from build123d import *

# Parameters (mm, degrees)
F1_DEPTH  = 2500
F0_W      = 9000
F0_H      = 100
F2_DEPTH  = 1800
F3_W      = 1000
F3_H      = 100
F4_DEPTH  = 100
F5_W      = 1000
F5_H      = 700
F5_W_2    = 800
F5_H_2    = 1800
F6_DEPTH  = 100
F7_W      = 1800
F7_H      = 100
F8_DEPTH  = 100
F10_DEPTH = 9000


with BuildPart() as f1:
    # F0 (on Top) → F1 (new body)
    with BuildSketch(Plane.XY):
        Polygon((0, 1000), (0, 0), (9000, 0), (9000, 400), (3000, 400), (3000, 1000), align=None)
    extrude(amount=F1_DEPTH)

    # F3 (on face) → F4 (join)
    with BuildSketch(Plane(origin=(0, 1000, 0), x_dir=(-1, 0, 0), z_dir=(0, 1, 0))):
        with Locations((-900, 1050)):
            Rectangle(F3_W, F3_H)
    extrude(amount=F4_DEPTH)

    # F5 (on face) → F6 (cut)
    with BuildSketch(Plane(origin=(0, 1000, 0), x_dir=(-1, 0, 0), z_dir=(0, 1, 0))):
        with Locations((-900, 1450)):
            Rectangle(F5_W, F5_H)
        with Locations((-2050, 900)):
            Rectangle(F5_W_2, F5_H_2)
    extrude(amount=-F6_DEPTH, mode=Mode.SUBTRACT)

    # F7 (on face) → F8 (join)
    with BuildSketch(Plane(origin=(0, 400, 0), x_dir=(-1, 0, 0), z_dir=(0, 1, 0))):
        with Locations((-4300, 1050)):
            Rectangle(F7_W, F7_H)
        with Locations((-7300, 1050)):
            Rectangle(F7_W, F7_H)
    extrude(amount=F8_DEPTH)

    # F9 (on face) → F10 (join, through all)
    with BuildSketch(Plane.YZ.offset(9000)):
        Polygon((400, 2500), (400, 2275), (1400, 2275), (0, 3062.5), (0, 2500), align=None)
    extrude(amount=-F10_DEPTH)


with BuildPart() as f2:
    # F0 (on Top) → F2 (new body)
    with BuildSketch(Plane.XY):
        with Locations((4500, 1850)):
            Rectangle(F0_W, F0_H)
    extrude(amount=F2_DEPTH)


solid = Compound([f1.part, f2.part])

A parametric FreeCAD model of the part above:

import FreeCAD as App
import Part
import Sketcher
Q = App.Units.Quantity

doc = App.newDocument("Part")
body = doc.addObject("PartDesign::Body", "Body")

sketch1 = doc.addObject("Sketcher::SketchObject", "Sketch")
body.addObject(sketch1)
sketch1.AttachmentSupport = (doc.XY_Plane, [""])
sketch1.MapMode = "FlatFace"
sketch1.addGeometry(Part.LineSegment(App.Vector(0, 1000, 0), App.Vector(0, 0, 0)), False)
sketch1.addGeometry(Part.LineSegment(App.Vector(0, 0, 0), App.Vector(9000, 0, 0)), False)
sketch1.addGeometry(Part.LineSegment(App.Vector(9000, 0, 0), App.Vector(9000, 400, 0)), False)
sketch1.addGeometry(Part.LineSegment(App.Vector(9000, 400, 0), App.Vector(3000, 400, 0)), False)
sketch1.addGeometry(Part.LineSegment(App.Vector(3000, 400, 0), App.Vector(3000, 1000, 0)), False)
sketch1.addGeometry(Part.LineSegment(App.Vector(3000, 1000, 0), App.Vector(0, 1000, 0)), False)
sketch1.addConstraint(Sketcher.Constraint("Coincident", 0, 2, 1, 1))
sketch1.addConstraint(Sketcher.Constraint("Coincident", 1, 2, 2, 1))
sketch1.addConstraint(Sketcher.Constraint("Coincident", 2, 2, 3, 1))
sketch1.addConstraint(Sketcher.Constraint("Coincident", 3, 2, 4, 1))
sketch1.addConstraint(Sketcher.Constraint("Coincident", 4, 2, 5, 1))
sketch1.addConstraint(Sketcher.Constraint("Coincident", 5, 2, 0, 1))
sketch1.addConstraint(Sketcher.Constraint("Vertical", 0))
sketch1.addConstraint(Sketcher.Constraint("Horizontal", 1))
sketch1.addConstraint(Sketcher.Constraint("Vertical", 2))
sketch1.addConstraint(Sketcher.Constraint("Horizontal", 3))
sketch1.addConstraint(Sketcher.Constraint("Vertical", 4))
sketch1.addConstraint(Sketcher.Constraint("Horizontal", 5))
sketch1.addConstraint(Sketcher.Constraint("Coincident", 0, 2, -1, 1))
sketch1.addConstraint(Sketcher.Constraint("DistanceX", 1, 1, 1, 2, Q("9000 mm")))
sketch1.addConstraint(Sketcher.Constraint("DistanceX", 3, 2, 3, 1, Q("6000 mm")))
sketch1.addConstraint(Sketcher.Constraint("DistanceY", 0, 2, 0, 1, Q("1000 mm")))
sketch1.addConstraint(Sketcher.Constraint("DistanceY", 2, 1, 2, 2, Q("400 mm")))
pad1 = doc.addObject("PartDesign::Pad", "Pad")
body.addObject(pad1)
pad1.Profile = sketch1
pad1.Length = 2500

sketch2 = doc.addObject("Sketcher::SketchObject", "Sketch001")
body.addObject(sketch2)
sketch2.AttachmentSupport = (doc.XZ_Plane, [""])
sketch2.MapMode = "FlatFace"
sketch2.AttachmentOffset = App.Placement(App.Vector(0, 0, -1000), App.Rotation())
sketch2.addGeometry(Part.LineSegment(App.Vector(1400, 1100, 0), App.Vector(1400, 1000, 0)), False)
sketch2.addGeometry(Part.LineSegment(App.Vector(1400, 1000, 0), App.Vector(400, 1000, 0)), False)
sketch2.addGeometry(Part.LineSegment(App.Vector(400, 1000, 0), App.Vector(400, 1100, 0)), False)
sketch2.addGeometry(Part.LineSegment(App.Vector(400, 1100, 0), App.Vector(1400, 1100, 0)), False)
sketch2.addConstraint(Sketcher.Constraint("Coincident", 0, 2, 1, 1))
sketch2.addConstraint(Sketcher.Constraint("Coincident", 1, 2, 2, 1))
sketch2.addConstraint(Sketcher.Constraint("Coincident", 2, 2, 3, 1))
sketch2.addConstraint(Sketcher.Constraint("Coincident", 3, 2, 0, 1))
sketch2.addConstraint(Sketcher.Constraint("Vertical", 0))
sketch2.addConstraint(Sketcher.Constraint("Horizontal", 1))
sketch2.addConstraint(Sketcher.Constraint("Vertical", 2))
sketch2.addConstraint(Sketcher.Constraint("Horizontal", 3))
sketch2.addConstraint(Sketcher.Constraint("DistanceX", 1, 2, 1, 1, Q("1000 mm")))
sketch2.addConstraint(Sketcher.Constraint("DistanceY", 0, 2, 0, 1, Q("100 mm")))
sketch2.addConstraint(Sketcher.Constraint("DistanceX", -1, 1, 0, 2, Q("1400 mm")))
sketch2.addConstraint(Sketcher.Constraint("DistanceY", -1, 1, 0, 2, Q("1000 mm")))
pad2 = doc.addObject("PartDesign::Pad", "Pad001")
body.addObject(pad2)
pad2.Profile = sketch2
pad2.Length = 100
pad2.Reversed = True

sketch3 = doc.addObject("Sketcher::SketchObject", "Sketch002")
body.addObject(sketch3)
sketch3.AttachmentSupport = (doc.XZ_Plane, [""])
sketch3.MapMode = "FlatFace"
sketch3.AttachmentOffset = App.Placement(App.Vector(0, 0, -1000), App.Rotation())
sketch3.addGeometry(Part.LineSegment(App.Vector(1400, 1800, 0), App.Vector(1400, 1100, 0)), False)
sketch3.addGeometry(Part.LineSegment(App.Vector(1400, 1100, 0), App.Vector(400, 1100, 0)), False)
sketch3.addGeometry(Part.LineSegment(App.Vector(400, 1100, 0), App.Vector(400, 1800, 0)), False)
sketch3.addGeometry(Part.LineSegment(App.Vector(400, 1800, 0), App.Vector(1400, 1800, 0)), False)
sketch3.addGeometry(Part.LineSegment(App.Vector(2450, 1800, 0), App.Vector(2450, 0, 0)), False)
sketch3.addGeometry(Part.LineSegment(App.Vector(2450, 0, 0), App.Vector(1650, 0, 0)), False)
sketch3.addGeometry(Part.LineSegment(App.Vector(1650, 0, 0), App.Vector(1650, 1800, 0)), False)
sketch3.addGeometry(Part.LineSegment(App.Vector(1650, 1800, 0), App.Vector(2450, 1800, 0)), False)
sketch3.addConstraint(Sketcher.Constraint("Coincident", 0, 2, 1, 1))
sketch3.addConstraint(Sketcher.Constraint("Coincident", 1, 2, 2, 1))
sketch3.addConstraint(Sketcher.Constraint("Coincident", 2, 2, 3, 1))
sketch3.addConstraint(Sketcher.Constraint("Coincident", 3, 2, 0, 1))
sketch3.addConstraint(Sketcher.Constraint("Coincident", 4, 2, 5, 1))
sketch3.addConstraint(Sketcher.Constraint("Coincident", 5, 2, 6, 1))
sketch3.addConstraint(Sketcher.Constraint("Coincident", 6, 2, 7, 1))
sketch3.addConstraint(Sketcher.Constraint("Coincident", 7, 2, 4, 1))
sketch3.addConstraint(Sketcher.Constraint("Vertical", 0))
sketch3.addConstraint(Sketcher.Constraint("Horizontal", 1))
sketch3.addConstraint(Sketcher.Constraint("Vertical", 2))
sketch3.addConstraint(Sketcher.Constraint("Horizontal", 3))
sketch3.addConstraint(Sketcher.Constraint("Vertical", 4))
sketch3.addConstraint(Sketcher.Constraint("Horizontal", 5))
sketch3.addConstraint(Sketcher.Constraint("Vertical", 6))
sketch3.addConstraint(Sketcher.Constraint("Horizontal", 7))
sketch3.addConstraint(Sketcher.Constraint("PointOnObject", 4, 2, -1))
sketch3.addConstraint(Sketcher.Constraint("Horizontal", 3, 2, 6, 2))
sketch3.addConstraint(Sketcher.Constraint("DistanceX", 1, 2, 1, 1, Q("1000 mm")))
sketch3.addConstraint(Sketcher.Constraint("DistanceX", 5, 2, 5, 1, Q("800 mm")))
sketch3.addConstraint(Sketcher.Constraint("DistanceY", 0, 2, 0, 1, Q("700 mm")))
sketch3.addConstraint(Sketcher.Constraint("DistanceY", 4, 2, 4, 1, Q("1800 mm")))
sketch3.addConstraint(Sketcher.Constraint("DistanceX", -1, 1, 0, 2, Q("1400 mm")))
sketch3.addConstraint(Sketcher.Constraint("DistanceX", -1, 1, 4, 2, Q("2450 mm")))
pocket1 = doc.addObject("PartDesign::Pocket", "Pocket")
body.addObject(pocket1)
pocket1.Profile = sketch3
pocket1.Length = 100
pocket1.Reversed = True

sketch4 = doc.addObject("Sketcher::SketchObject", "Sketch003")
body.addObject(sketch4)
sketch4.AttachmentSupport = (doc.XZ_Plane, [""])
sketch4.MapMode = "FlatFace"
sketch4.AttachmentOffset = App.Placement(App.Vector(0, 0, -400), App.Rotation())
sketch4.addGeometry(Part.LineSegment(App.Vector(5200, 1100, 0), App.Vector(5200, 1000, 0)), False)
sketch4.addGeometry(Part.LineSegment(App.Vector(5200, 1000, 0), App.Vector(3400, 1000, 0)), False)
sketch4.addGeometry(Part.LineSegment(App.Vector(3400, 1000, 0), App.Vector(3400, 1100, 0)), False)
sketch4.addGeometry(Part.LineSegment(App.Vector(3400, 1100, 0), App.Vector(5200, 1100, 0)), False)
sketch4.addGeometry(Part.LineSegment(App.Vector(8200, 1100, 0), App.Vector(8200, 1000, 0)), False)
sketch4.addGeometry(Part.LineSegment(App.Vector(8200, 1000, 0), App.Vector(6400, 1000, 0)), False)
sketch4.addGeometry(Part.LineSegment(App.Vector(6400, 1000, 0), App.Vector(6400, 1100, 0)), False)
sketch4.addGeometry(Part.LineSegment(App.Vector(6400, 1100, 0), App.Vector(8200, 1100, 0)), False)
sketch4.addConstraint(Sketcher.Constraint("Coincident", 0, 2, 1, 1))
sketch4.addConstraint(Sketcher.Constraint("Coincident", 1, 2, 2, 1))
sketch4.addConstraint(Sketcher.Constraint("Coincident", 2, 2, 3, 1))
sketch4.addConstraint(Sketcher.Constraint("Coincident", 3, 2, 0, 1))
sketch4.addConstraint(Sketcher.Constraint("Coincident", 4, 2, 5, 1))
sketch4.addConstraint(Sketcher.Constraint("Coincident", 5, 2, 6, 1))
sketch4.addConstraint(Sketcher.Constraint("Coincident", 6, 2, 7, 1))
sketch4.addConstraint(Sketcher.Constraint("Coincident", 7, 2, 4, 1))
sketch4.addConstraint(Sketcher.Constraint("Vertical", 0))
sketch4.addConstraint(Sketcher.Constraint("Horizontal", 1))
sketch4.addConstraint(Sketcher.Constraint("Vertical", 2))
sketch4.addConstraint(Sketcher.Constraint("Horizontal", 3))
sketch4.addConstraint(Sketcher.Constraint("Vertical", 4))
sketch4.addConstraint(Sketcher.Constraint("Horizontal", 5))
sketch4.addConstraint(Sketcher.Constraint("Vertical", 6))
sketch4.addConstraint(Sketcher.Constraint("Horizontal", 7))
sketch4.addConstraint(Sketcher.Constraint("Horizontal", 1, 2, 4, 2))
sketch4.addConstraint(Sketcher.Constraint("Horizontal", 3, 2, 6, 2))
sketch4.addConstraint(Sketcher.Constraint("Equal", 3, 5))
sketch4.addConstraint(Sketcher.Constraint("DistanceX", 1, 2, 1, 1, Q("1800 mm")))
sketch4.addConstraint(Sketcher.Constraint("DistanceY", 0, 2, 0, 1, Q("100 mm")))
sketch4.addConstraint(Sketcher.Constraint("DistanceX", -1, 1, 0, 2, Q("5200 mm")))
sketch4.addConstraint(Sketcher.Constraint("DistanceY", -1, 1, 0, 2, Q("1000 mm")))
sketch4.addConstraint(Sketcher.Constraint("DistanceX", -1, 1, 4, 2, Q("8200 mm")))
pad3 = doc.addObject("PartDesign::Pad", "Pad002")
body.addObject(pad3)
pad3.Profile = sketch4
pad3.Length = 100
pad3.Reversed = True

sketch5 = doc.addObject("Sketcher::SketchObject", "Sketch004")
body.addObject(sketch5)
sketch5.AttachmentSupport = (doc.YZ_Plane, [""])
sketch5.MapMode = "FlatFace"
sketch5.AttachmentOffset = App.Placement(App.Vector(0, 0, 9000), App.Rotation())
sketch5.addGeometry(Part.LineSegment(App.Vector(400, 2500, 0), App.Vector(400, 2275, 0)), False)
sketch5.addGeometry(Part.LineSegment(App.Vector(400, 2275, 0), App.Vector(1400, 2275, 0)), False)
sketch5.addGeometry(Part.LineSegment(App.Vector(1400, 2275, 0), App.Vector(0, 3062, 0)), False)
sketch5.addGeometry(Part.LineSegment(App.Vector(0, 3062, 0), App.Vector(0, 2500, 0)), False)
sketch5.addGeometry(Part.LineSegment(App.Vector(0, 2500, 0), App.Vector(400, 2500, 0)), False)
sketch5.addConstraint(Sketcher.Constraint("Coincident", 0, 2, 1, 1))
sketch5.addConstraint(Sketcher.Constraint("Coincident", 1, 2, 2, 1))
sketch5.addConstraint(Sketcher.Constraint("Coincident", 2, 2, 3, 1))
sketch5.addConstraint(Sketcher.Constraint("Coincident", 3, 2, 4, 1))
sketch5.addConstraint(Sketcher.Constraint("Coincident", 4, 2, 0, 1))
sketch5.addConstraint(Sketcher.Constraint("Vertical", 0))
sketch5.addConstraint(Sketcher.Constraint("Horizontal", 1))
sketch5.addConstraint(Sketcher.Constraint("Vertical", 3))
sketch5.addConstraint(Sketcher.Constraint("Horizontal", 4))
sketch5.addConstraint(Sketcher.Constraint("PointOnObject", 2, 2, -2))
sketch5.addConstraint(Sketcher.Constraint("DistanceX", 1, 1, 1, 2, Q("1000 mm")))
sketch5.addConstraint(Sketcher.Constraint("DistanceX", 4, 1, 4, 2, Q("400 mm")))
sketch5.addConstraint(Sketcher.Constraint("DistanceY", 0, 2, 0, 1, Q("225 mm")))
sketch5.addConstraint(Sketcher.Constraint("DistanceY", 3, 2, 3, 1, Q("562.5 mm")))
sketch5.addConstraint(Sketcher.Constraint("DistanceY", -1, 1, 0, 2, Q("2275 mm")))
pad4 = doc.addObject("PartDesign::Pad", "Pad003")
body.addObject(pad4)
pad4.Profile = sketch5
pad4.Length = 9000
pad4.Reversed = True
body2 = doc.addObject("PartDesign::Body", "Body001")

sketch6 = doc.addObject("Sketcher::SketchObject", "Sketch005")
body2.addObject(sketch6)
sketch6.AttachmentSupport = (doc.getObject("XY_Plane001"), [""])
sketch6.MapMode = "FlatFace"
sketch6.addGeometry(Part.LineSegment(App.Vector(0, 1900, 0), App.Vector(0, 1800, 0)), False)
sketch6.addGeometry(Part.LineSegment(App.Vector(0, 1800, 0), App.Vector(9000, 1800, 0)), False)
sketch6.addGeometry(Part.LineSegment(App.Vector(9000, 1800, 0), App.Vector(9000, 1900, 0)), False)
sketch6.addGeometry(Part.LineSegment(App.Vector(9000, 1900, 0), App.Vector(0, 1900, 0)), False)
sketch6.addConstraint(Sketcher.Constraint("Coincident", 0, 2, 1, 1))
sketch6.addConstraint(Sketcher.Constraint("Coincident", 1, 2, 2, 1))
sketch6.addConstraint(Sketcher.Constraint("Coincident", 2, 2, 3, 1))
sketch6.addConstraint(Sketcher.Constraint("Coincident", 3, 2, 0, 1))
sketch6.addConstraint(Sketcher.Constraint("Vertical", 0))
sketch6.addConstraint(Sketcher.Constraint("Horizontal", 1))
sketch6.addConstraint(Sketcher.Constraint("Vertical", 2))
sketch6.addConstraint(Sketcher.Constraint("Horizontal", 3))
sketch6.addConstraint(Sketcher.Constraint("PointOnObject", 0, 2, -2))
sketch6.addConstraint(Sketcher.Constraint("DistanceX", 1, 1, 1, 2, Q("9000 mm")))
sketch6.addConstraint(Sketcher.Constraint("DistanceY", 0, 2, 0, 1, Q("100 mm")))
sketch6.addConstraint(Sketcher.Constraint("DistanceY", -1, 1, 0, 2, Q("1800 mm")))
pad5 = doc.addObject("PartDesign::Pad", "Pad004")
body2.addObject(pad5)
pad5.Profile = sketch6
pad5.Length = 1800

doc.recompute()
